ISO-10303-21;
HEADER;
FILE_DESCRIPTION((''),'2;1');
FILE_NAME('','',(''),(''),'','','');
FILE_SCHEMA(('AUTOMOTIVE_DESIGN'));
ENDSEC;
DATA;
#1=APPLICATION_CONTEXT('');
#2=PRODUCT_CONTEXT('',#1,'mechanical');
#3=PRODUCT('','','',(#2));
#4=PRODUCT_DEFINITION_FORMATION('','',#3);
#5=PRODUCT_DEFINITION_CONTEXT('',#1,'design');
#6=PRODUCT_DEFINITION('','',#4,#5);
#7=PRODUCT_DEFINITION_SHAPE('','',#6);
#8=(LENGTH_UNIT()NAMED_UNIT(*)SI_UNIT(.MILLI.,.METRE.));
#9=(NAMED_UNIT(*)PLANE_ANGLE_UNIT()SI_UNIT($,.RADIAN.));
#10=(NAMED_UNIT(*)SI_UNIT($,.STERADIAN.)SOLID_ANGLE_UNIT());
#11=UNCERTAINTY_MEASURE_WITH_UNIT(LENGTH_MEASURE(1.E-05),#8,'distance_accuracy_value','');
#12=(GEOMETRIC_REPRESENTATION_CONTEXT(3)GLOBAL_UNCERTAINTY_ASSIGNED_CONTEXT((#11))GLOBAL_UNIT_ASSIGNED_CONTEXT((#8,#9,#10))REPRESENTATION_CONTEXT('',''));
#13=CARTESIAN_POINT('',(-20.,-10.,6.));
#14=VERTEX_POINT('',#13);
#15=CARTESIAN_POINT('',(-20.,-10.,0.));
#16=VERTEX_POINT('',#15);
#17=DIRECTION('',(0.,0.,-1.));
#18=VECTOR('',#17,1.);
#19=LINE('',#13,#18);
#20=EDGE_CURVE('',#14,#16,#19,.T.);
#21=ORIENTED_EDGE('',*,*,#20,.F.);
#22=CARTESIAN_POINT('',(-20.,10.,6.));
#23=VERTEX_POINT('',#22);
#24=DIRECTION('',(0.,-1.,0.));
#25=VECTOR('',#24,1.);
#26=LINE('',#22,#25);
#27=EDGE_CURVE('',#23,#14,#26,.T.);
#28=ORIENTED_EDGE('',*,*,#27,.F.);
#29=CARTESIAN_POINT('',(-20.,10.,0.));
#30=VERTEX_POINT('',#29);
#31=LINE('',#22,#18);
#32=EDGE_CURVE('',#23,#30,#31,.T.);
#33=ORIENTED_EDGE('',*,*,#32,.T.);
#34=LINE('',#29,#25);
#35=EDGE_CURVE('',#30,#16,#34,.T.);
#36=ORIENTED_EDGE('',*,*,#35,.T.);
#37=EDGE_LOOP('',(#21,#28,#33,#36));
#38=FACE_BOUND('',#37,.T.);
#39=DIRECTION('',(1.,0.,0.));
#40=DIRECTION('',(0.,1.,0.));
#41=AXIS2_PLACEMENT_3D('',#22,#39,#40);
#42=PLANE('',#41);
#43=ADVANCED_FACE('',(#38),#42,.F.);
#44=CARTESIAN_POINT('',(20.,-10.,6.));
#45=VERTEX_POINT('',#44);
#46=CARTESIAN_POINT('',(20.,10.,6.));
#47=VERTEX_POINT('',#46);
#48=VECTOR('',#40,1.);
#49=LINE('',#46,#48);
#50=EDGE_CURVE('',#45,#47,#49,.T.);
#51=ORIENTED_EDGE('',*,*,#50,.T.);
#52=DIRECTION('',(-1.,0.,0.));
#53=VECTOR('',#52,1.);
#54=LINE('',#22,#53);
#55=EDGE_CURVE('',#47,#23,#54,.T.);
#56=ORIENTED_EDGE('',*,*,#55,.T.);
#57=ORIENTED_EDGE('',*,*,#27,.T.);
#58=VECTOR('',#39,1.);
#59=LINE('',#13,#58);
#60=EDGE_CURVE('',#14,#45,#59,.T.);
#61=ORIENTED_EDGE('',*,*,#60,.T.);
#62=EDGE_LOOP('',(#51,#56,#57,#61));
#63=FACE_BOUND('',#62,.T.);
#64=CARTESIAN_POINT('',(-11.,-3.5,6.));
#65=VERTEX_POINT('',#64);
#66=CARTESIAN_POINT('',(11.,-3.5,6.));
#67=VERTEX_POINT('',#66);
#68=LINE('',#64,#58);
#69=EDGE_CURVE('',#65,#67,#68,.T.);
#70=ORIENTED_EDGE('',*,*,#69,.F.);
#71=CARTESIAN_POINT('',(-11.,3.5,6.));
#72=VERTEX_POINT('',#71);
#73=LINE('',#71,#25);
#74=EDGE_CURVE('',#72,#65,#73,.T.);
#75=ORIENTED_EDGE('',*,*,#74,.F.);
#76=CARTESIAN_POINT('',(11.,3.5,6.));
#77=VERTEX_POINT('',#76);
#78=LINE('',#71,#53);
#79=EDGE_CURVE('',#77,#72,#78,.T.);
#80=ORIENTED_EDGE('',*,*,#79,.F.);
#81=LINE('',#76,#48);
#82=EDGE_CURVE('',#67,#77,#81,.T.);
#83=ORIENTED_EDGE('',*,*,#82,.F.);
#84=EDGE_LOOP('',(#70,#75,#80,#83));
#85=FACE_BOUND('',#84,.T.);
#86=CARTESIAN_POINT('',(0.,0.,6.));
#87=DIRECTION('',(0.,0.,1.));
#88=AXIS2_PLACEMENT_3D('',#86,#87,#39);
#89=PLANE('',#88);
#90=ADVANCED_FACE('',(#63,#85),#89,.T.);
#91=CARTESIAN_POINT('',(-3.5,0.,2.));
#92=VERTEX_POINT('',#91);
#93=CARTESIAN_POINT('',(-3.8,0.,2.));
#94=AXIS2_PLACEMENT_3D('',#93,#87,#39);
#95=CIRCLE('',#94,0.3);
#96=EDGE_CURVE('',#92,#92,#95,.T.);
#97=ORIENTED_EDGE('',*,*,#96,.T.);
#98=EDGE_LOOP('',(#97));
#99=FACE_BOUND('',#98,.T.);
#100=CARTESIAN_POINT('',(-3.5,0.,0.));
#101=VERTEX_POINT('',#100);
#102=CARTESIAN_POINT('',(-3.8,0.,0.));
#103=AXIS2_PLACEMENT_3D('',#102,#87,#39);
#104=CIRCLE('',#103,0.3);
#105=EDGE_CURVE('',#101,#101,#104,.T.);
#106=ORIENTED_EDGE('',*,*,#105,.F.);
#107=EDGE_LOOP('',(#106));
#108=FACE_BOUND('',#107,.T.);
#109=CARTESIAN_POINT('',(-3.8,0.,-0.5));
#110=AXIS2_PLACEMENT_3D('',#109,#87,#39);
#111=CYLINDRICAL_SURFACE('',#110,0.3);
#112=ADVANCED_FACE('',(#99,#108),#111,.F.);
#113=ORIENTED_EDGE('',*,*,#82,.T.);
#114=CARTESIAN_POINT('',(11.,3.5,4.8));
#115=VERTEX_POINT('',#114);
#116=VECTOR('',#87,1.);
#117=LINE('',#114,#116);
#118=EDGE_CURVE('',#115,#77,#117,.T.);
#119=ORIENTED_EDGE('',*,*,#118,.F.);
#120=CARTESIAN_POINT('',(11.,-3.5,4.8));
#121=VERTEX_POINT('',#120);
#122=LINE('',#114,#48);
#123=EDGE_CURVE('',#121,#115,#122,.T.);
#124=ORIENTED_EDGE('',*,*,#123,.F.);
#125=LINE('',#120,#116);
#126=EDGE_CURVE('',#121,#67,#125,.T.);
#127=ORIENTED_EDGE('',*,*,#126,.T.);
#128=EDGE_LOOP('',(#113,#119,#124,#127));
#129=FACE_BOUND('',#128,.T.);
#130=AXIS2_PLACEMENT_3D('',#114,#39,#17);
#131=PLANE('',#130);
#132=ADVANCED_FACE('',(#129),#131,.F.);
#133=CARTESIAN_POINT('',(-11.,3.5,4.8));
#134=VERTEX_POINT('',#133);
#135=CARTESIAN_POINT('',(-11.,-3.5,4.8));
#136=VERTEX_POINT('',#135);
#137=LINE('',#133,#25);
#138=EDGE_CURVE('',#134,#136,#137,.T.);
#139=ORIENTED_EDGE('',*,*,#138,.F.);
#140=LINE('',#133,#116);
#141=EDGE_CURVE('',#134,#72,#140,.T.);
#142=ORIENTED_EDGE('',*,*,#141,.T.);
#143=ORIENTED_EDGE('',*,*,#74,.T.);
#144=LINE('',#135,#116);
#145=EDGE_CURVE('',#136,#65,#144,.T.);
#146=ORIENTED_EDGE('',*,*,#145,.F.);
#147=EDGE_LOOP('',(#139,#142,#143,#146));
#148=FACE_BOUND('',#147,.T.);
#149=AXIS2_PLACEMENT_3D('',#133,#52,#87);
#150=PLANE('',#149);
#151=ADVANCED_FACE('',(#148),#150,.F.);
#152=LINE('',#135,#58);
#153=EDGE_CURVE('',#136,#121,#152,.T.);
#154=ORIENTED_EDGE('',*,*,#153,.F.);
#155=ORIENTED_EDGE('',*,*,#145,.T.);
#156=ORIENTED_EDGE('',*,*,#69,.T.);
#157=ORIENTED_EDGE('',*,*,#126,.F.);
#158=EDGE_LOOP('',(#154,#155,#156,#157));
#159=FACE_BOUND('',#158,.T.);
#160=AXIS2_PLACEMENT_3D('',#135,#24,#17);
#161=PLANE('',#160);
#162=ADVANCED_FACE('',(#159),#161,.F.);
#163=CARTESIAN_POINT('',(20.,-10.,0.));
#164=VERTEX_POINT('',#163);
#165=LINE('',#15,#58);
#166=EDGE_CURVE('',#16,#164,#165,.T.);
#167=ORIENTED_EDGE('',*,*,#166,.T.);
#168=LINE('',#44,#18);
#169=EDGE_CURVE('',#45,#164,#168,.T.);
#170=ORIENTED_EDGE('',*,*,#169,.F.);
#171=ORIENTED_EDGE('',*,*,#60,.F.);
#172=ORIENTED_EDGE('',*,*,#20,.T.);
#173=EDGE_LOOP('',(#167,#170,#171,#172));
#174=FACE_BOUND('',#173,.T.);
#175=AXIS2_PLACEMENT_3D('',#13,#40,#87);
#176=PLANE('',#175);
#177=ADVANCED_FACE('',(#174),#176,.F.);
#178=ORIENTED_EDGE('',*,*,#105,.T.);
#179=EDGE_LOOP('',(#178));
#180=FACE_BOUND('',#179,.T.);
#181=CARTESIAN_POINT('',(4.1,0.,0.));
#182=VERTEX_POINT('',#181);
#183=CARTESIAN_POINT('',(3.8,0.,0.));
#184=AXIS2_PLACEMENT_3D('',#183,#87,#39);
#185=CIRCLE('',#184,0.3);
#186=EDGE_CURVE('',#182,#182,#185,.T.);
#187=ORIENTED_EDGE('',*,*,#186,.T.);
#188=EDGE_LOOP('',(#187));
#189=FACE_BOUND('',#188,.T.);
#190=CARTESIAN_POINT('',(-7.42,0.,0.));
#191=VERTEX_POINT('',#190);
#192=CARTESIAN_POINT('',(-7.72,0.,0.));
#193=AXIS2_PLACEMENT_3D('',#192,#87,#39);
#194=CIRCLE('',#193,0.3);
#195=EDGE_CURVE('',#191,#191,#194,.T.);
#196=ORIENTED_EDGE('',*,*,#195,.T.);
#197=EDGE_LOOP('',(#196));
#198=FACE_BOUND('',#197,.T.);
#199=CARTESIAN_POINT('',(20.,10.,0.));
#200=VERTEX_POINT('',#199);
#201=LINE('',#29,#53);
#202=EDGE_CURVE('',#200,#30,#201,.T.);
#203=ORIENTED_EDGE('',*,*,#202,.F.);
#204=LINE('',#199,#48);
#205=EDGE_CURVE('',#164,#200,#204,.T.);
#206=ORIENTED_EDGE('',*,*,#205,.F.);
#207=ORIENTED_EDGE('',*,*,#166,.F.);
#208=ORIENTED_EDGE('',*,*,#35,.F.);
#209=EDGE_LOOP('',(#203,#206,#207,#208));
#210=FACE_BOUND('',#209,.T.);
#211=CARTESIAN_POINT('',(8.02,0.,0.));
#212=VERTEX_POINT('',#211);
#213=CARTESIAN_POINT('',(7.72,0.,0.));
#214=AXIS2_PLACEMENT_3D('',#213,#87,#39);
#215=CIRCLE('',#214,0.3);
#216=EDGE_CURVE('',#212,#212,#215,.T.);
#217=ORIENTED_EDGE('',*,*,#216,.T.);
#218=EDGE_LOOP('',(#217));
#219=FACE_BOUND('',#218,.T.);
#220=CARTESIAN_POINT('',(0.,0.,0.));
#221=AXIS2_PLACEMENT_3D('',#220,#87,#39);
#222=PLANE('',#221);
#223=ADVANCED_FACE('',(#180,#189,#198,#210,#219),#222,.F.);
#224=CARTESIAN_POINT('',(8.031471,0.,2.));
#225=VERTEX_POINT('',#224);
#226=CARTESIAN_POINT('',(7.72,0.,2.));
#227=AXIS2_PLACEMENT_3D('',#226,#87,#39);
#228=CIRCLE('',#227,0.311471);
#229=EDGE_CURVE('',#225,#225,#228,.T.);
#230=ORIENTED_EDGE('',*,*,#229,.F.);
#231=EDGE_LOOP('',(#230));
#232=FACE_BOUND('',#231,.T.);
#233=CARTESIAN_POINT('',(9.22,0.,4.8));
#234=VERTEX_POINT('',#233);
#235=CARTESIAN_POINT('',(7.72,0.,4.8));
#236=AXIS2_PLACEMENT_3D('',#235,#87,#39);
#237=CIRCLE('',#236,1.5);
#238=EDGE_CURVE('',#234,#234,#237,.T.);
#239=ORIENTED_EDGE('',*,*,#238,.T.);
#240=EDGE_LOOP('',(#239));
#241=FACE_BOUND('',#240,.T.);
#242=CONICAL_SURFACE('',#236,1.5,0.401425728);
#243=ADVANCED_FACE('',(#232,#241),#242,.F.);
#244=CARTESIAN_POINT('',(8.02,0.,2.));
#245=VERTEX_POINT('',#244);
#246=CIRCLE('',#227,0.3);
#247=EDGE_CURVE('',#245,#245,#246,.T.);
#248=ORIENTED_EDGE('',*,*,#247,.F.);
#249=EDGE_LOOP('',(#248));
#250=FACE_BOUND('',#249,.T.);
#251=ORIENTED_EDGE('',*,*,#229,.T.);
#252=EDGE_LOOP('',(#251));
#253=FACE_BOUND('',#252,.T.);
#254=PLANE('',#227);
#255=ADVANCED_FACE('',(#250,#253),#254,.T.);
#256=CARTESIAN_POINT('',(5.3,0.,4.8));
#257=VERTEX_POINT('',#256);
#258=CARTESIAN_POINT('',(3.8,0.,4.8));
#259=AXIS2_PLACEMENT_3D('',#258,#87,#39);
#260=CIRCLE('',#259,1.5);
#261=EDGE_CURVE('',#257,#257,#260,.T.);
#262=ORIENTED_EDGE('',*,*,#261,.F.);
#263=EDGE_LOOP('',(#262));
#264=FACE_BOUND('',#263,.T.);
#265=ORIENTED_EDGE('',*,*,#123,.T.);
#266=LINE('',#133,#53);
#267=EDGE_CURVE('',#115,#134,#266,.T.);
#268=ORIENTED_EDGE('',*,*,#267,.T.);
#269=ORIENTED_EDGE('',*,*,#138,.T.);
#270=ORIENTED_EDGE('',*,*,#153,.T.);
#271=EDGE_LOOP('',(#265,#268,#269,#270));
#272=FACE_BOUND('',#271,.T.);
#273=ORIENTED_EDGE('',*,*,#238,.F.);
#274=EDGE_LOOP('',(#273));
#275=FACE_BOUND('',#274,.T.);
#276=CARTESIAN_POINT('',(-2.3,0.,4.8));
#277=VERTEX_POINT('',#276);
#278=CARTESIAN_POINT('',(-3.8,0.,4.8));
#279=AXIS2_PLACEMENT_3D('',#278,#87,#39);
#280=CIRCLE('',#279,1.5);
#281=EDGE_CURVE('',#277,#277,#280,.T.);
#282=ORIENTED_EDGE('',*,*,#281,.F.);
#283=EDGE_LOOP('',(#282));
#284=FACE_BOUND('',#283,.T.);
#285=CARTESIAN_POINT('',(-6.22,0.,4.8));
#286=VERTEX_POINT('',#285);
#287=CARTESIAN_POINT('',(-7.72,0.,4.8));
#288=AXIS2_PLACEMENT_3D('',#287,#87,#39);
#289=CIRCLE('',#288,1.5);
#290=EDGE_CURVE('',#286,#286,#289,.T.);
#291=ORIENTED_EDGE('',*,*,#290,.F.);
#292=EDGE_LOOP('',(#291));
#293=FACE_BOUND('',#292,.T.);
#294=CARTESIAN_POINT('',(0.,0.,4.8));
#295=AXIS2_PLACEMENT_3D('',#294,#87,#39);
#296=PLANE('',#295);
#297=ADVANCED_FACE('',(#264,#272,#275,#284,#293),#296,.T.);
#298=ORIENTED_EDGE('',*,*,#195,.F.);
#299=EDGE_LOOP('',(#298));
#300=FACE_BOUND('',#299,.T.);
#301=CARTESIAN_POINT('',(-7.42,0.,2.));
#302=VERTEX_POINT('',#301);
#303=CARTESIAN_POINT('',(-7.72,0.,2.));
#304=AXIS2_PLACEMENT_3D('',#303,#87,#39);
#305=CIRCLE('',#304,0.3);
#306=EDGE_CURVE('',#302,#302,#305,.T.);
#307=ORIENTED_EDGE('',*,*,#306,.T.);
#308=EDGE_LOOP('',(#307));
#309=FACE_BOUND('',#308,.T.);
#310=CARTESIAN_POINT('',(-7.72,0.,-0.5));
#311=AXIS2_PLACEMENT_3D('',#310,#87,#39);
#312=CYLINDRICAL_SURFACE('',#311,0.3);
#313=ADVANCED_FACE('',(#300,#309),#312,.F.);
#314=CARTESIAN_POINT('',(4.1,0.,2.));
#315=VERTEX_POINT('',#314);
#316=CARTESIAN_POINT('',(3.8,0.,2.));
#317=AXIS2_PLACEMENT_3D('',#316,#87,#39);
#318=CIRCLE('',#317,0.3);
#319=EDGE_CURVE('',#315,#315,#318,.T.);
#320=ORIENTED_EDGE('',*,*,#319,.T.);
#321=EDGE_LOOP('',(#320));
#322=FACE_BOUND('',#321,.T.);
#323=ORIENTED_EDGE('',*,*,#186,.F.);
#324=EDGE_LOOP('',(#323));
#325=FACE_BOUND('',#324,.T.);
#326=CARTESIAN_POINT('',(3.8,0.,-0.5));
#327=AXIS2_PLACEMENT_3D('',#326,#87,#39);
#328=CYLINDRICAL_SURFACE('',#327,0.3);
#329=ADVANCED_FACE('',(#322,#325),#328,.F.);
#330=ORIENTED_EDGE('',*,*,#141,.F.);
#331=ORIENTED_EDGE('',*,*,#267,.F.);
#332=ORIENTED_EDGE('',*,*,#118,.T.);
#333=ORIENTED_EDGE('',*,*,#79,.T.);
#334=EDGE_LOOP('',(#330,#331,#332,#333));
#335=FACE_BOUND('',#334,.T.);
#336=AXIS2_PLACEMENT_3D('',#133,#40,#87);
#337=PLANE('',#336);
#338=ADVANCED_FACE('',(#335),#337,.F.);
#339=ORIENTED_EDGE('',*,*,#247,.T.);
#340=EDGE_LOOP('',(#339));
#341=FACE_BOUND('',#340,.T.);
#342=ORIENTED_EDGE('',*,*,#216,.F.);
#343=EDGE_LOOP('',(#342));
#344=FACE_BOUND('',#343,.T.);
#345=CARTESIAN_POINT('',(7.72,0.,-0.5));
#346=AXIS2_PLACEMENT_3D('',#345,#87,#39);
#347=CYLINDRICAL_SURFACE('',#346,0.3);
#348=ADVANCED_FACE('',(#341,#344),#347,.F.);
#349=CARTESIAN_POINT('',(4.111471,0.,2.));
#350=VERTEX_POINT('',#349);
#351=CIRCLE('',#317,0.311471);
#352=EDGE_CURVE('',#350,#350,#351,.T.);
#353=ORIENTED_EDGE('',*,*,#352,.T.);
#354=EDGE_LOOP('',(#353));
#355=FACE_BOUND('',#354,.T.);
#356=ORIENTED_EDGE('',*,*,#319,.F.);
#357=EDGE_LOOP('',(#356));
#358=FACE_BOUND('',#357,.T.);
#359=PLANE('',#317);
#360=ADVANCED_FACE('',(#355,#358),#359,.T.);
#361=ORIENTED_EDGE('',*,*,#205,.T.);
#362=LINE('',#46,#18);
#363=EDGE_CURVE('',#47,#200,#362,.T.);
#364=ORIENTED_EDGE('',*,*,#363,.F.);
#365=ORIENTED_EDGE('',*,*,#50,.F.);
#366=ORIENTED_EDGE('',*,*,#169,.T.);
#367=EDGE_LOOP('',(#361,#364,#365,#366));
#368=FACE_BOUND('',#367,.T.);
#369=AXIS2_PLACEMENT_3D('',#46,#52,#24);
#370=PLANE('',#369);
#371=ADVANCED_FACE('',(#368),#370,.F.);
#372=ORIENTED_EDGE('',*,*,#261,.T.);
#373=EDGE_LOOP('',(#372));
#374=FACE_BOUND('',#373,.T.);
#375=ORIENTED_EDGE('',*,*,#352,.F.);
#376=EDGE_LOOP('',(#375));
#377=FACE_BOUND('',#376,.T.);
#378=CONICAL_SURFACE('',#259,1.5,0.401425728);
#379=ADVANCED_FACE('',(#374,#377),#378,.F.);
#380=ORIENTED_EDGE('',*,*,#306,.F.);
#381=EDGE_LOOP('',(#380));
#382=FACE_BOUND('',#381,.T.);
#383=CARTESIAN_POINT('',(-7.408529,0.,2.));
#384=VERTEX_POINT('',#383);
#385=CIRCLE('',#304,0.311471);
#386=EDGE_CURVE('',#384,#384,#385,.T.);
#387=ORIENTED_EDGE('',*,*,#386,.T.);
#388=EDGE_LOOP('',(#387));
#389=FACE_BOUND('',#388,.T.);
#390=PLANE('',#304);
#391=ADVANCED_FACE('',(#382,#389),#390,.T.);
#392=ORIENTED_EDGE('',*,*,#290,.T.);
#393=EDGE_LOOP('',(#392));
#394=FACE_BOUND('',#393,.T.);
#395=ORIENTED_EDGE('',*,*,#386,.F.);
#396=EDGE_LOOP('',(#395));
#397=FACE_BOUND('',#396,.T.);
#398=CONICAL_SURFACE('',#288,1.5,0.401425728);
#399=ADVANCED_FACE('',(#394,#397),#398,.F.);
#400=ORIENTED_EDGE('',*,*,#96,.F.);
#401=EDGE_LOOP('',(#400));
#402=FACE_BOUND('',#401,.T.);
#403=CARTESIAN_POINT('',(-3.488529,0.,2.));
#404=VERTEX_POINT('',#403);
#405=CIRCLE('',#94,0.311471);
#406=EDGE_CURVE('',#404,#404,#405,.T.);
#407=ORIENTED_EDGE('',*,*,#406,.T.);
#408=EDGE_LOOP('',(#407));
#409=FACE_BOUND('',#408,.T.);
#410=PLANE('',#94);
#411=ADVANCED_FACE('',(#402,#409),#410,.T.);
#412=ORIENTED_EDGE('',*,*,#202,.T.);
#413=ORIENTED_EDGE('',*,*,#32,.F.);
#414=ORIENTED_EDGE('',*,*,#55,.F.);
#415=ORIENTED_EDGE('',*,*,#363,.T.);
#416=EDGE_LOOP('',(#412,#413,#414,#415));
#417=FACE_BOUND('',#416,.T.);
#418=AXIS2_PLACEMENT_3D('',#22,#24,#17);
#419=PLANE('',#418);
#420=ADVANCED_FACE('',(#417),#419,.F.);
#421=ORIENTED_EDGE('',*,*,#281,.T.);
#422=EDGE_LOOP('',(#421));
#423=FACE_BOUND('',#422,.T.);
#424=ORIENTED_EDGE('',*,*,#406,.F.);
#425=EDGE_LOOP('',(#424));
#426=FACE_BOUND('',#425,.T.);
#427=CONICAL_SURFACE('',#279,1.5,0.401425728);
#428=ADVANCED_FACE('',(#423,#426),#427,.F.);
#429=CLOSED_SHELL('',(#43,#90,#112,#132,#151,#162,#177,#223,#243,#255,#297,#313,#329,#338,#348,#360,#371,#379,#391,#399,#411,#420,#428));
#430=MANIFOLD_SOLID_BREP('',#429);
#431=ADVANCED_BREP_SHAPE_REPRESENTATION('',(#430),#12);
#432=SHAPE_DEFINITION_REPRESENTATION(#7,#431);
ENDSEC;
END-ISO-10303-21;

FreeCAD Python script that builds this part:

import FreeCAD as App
import Part
import Sketcher

V = App.Vector

doc = App.newDocument("Part")
body = doc.addObject("PartDesign::Body", "Body")

# Sketch on XY plane
sketch1 = body.newObject("Sketcher::SketchObject", "Sketch")
sketch1.AttachmentSupport = (doc.getObject("XY_Plane"), [""])
sketch1.MapMode = "FlatFace"
sketch1.addGeometry([
    Part.LineSegment(V(-20, 10, 0), V(-20, -10, 0)),
    Part.LineSegment(V(-20, -10, 0), V(20, -10, 0)),
    Part.LineSegment(V(20, -10, 0), V(20, 10, 0)),
    Part.LineSegment(V(20, 10, 0), V(-20, 10, 0)),
], False)
sketch1.addConstraint([
    Sketcher.Constraint("Coincident", 0, 2, 1, 1),
    Sketcher.Constraint("Coincident", 1, 2, 2, 1),
    Sketcher.Constraint("Coincident", 2, 2, 3, 1),
    Sketcher.Constraint("Coincident", 3, 2, 0, 1),
    Sketcher.Constraint("Vertical", 0),
    Sketcher.Constraint("Horizontal", 1),
    Sketcher.Constraint("Vertical", 2),
    Sketcher.Constraint("Horizontal", 3),
    Sketcher.Constraint("Symmetric", 0, 2, 2, 2, -1, 1),
    Sketcher.Constraint("DistanceX", 1, 1, 1, 2, 40.0),
    Sketcher.Constraint("DistanceY", 0, 2, 0, 1, 20.0),
])
pad1 = body.newObject("PartDesign::Pad", "Pad")
pad1.Profile = sketch1
pad1.Length = 6

# Sketch on XY plane
sketch2 = body.newObject("Sketcher::SketchObject", "Sketch001")
sketch2.AttachmentSupport = (doc.getObject("XY_Plane"), [""])
sketch2.MapMode = "FlatFace"
sketch2.AttachmentOffset = App.Placement(V(0, 0, 6), App.Rotation())
sketch2.addGeometry([
    Part.LineSegment(V(-11, 4, 0), V(-11, -4, 0)),
    Part.LineSegment(V(-11, -4, 0), V(11, -4, 0)),
    Part.LineSegment(V(11, -4, 0), V(11, 4, 0)),
    Part.LineSegment(V(11, 4, 0), V(-11, 4, 0)),
], False)
sketch2.addConstraint([
    Sketcher.Constraint("Coincident", 0, 2, 1, 1),
    Sketcher.Constraint("Coincident", 1, 2, 2, 1),
    Sketcher.Constraint("Coincident", 2, 2, 3, 1),
    Sketcher.Constraint("Coincident", 3, 2, 0, 1),
    Sketcher.Constraint("Vertical", 0),
    Sketcher.Constraint("Horizontal", 1),
    Sketcher.Constraint("Vertical", 2),
    Sketcher.Constraint("Horizontal", 3),
    Sketcher.Constraint("Symmetric", 0, 2, 2, 2, -1, 1),
    Sketcher.Constraint("DistanceX", 1, 1, 1, 2, 22.0),
    Sketcher.Constraint("DistanceY", 0, 2, 0, 1, 7.0),
])
pocket1 = body.newObject("PartDesign::Pocket", "Pocket")
pocket1.Profile = sketch2
pocket1.Length = 1.2

# Sketch on XY plane
sketch3 = body.newObject("Sketcher::SketchObject", "Sketch002")
sketch3.AttachmentSupport = (doc.getObject("XY_Plane"), [""])
sketch3.MapMode = "FlatFace"
sketch3.AttachmentOffset = App.Placement(V(0, 0, 4.8), App.Rotation())
sketch3.addGeometry([
    Part.Circle(V(-7.7, 0, 0), V(0, 0, 1), 1.5),
    Part.Circle(V(-3.8, 0, 0), V(0, 0, 1), 1.5),
    Part.Circle(V(3.8, 0, 0), V(0, 0, 1), 1.5),
    Part.Circle(V(7.7, 0, 0), V(0, 0, 1), 1.5),
], False)
sketch3.addConstraint([
    Sketcher.Constraint("Equal", 0, 1),
    Sketcher.Constraint("Equal", 1, 2),
    Sketcher.Constraint("Equal", 2, 3),
    Sketcher.Constraint("Symmetric", 1, 3, 2, 3, -1, 1),
    Sketcher.Constraint("Symmetric", 0, 3, 3, 3, -1, 1),
    Sketcher.Constraint("PointOnObject", 0, 3, -1),
    Sketcher.Constraint("PointOnObject", 1, 3, -1),
    Sketcher.Constraint("Diameter", 0, 3.0),
    Sketcher.Constraint("DistanceX", 1, 3, -1, 1, 3.8),
    Sketcher.Constraint("DistanceX", 0, 3, -1, 1, 7.72),
])
pocket2 = body.newObject("PartDesign::Pocket", "Pocket001")
pocket2.Profile = sketch3
pocket2.Length = 2.8
pocket2.TaperAngle = -23

# Sketch on XY plane
sketch4 = body.newObject("Sketcher::SketchObject", "Sketch003")
sketch4.AttachmentSupport = (doc.getObject("XY_Plane"), [""])
sketch4.MapMode = "FlatFace"
sketch4.AttachmentOffset = App.Placement(V(0, 0, 2), App.Rotation())
sketch4.addGeometry([
    Part.Circle(V(-7.72, 0, 0), V(0, 0, 1), 0.3),
    Part.Circle(V(-3.8, 0, 0), V(0, 0, 1), 0.3),
    Part.Circle(V(3.8, 0, 0), V(0, 0, 1), 0.3),
    Part.Circle(V(7.72, 0, 0), V(0, 0, 1), 0.3),
], False)
sketch4.addConstraint([
    Sketcher.Constraint("Equal", 0, 1),
    Sketcher.Constraint("Equal", 1, 2),
    Sketcher.Constraint("Equal", 2, 3),
    Sketcher.Constraint("Symmetric", 1, 3, 2, 3, -1, 1),
    Sketcher.Constraint("Symmetric", 0, 3, 3, 3, -1, 1),
    Sketcher.Constraint("PointOnObject", 0, 3, -1),
    Sketcher.Constraint("PointOnObject", 1, 3, -1),
    Sketcher.Constraint("Diameter", 0, 0.6),
    Sketcher.Constraint("DistanceX", 1, 3, -1, 1, 3.8),
    Sketcher.Constraint("DistanceX", 0, 3, -1, 1, 7.72),
])
pocket3 = body.newObject("PartDesign::Pocket", "Pocket002")
pocket3.Profile = sketch4
pocket3.Length = 2.5

doc.recompute()
